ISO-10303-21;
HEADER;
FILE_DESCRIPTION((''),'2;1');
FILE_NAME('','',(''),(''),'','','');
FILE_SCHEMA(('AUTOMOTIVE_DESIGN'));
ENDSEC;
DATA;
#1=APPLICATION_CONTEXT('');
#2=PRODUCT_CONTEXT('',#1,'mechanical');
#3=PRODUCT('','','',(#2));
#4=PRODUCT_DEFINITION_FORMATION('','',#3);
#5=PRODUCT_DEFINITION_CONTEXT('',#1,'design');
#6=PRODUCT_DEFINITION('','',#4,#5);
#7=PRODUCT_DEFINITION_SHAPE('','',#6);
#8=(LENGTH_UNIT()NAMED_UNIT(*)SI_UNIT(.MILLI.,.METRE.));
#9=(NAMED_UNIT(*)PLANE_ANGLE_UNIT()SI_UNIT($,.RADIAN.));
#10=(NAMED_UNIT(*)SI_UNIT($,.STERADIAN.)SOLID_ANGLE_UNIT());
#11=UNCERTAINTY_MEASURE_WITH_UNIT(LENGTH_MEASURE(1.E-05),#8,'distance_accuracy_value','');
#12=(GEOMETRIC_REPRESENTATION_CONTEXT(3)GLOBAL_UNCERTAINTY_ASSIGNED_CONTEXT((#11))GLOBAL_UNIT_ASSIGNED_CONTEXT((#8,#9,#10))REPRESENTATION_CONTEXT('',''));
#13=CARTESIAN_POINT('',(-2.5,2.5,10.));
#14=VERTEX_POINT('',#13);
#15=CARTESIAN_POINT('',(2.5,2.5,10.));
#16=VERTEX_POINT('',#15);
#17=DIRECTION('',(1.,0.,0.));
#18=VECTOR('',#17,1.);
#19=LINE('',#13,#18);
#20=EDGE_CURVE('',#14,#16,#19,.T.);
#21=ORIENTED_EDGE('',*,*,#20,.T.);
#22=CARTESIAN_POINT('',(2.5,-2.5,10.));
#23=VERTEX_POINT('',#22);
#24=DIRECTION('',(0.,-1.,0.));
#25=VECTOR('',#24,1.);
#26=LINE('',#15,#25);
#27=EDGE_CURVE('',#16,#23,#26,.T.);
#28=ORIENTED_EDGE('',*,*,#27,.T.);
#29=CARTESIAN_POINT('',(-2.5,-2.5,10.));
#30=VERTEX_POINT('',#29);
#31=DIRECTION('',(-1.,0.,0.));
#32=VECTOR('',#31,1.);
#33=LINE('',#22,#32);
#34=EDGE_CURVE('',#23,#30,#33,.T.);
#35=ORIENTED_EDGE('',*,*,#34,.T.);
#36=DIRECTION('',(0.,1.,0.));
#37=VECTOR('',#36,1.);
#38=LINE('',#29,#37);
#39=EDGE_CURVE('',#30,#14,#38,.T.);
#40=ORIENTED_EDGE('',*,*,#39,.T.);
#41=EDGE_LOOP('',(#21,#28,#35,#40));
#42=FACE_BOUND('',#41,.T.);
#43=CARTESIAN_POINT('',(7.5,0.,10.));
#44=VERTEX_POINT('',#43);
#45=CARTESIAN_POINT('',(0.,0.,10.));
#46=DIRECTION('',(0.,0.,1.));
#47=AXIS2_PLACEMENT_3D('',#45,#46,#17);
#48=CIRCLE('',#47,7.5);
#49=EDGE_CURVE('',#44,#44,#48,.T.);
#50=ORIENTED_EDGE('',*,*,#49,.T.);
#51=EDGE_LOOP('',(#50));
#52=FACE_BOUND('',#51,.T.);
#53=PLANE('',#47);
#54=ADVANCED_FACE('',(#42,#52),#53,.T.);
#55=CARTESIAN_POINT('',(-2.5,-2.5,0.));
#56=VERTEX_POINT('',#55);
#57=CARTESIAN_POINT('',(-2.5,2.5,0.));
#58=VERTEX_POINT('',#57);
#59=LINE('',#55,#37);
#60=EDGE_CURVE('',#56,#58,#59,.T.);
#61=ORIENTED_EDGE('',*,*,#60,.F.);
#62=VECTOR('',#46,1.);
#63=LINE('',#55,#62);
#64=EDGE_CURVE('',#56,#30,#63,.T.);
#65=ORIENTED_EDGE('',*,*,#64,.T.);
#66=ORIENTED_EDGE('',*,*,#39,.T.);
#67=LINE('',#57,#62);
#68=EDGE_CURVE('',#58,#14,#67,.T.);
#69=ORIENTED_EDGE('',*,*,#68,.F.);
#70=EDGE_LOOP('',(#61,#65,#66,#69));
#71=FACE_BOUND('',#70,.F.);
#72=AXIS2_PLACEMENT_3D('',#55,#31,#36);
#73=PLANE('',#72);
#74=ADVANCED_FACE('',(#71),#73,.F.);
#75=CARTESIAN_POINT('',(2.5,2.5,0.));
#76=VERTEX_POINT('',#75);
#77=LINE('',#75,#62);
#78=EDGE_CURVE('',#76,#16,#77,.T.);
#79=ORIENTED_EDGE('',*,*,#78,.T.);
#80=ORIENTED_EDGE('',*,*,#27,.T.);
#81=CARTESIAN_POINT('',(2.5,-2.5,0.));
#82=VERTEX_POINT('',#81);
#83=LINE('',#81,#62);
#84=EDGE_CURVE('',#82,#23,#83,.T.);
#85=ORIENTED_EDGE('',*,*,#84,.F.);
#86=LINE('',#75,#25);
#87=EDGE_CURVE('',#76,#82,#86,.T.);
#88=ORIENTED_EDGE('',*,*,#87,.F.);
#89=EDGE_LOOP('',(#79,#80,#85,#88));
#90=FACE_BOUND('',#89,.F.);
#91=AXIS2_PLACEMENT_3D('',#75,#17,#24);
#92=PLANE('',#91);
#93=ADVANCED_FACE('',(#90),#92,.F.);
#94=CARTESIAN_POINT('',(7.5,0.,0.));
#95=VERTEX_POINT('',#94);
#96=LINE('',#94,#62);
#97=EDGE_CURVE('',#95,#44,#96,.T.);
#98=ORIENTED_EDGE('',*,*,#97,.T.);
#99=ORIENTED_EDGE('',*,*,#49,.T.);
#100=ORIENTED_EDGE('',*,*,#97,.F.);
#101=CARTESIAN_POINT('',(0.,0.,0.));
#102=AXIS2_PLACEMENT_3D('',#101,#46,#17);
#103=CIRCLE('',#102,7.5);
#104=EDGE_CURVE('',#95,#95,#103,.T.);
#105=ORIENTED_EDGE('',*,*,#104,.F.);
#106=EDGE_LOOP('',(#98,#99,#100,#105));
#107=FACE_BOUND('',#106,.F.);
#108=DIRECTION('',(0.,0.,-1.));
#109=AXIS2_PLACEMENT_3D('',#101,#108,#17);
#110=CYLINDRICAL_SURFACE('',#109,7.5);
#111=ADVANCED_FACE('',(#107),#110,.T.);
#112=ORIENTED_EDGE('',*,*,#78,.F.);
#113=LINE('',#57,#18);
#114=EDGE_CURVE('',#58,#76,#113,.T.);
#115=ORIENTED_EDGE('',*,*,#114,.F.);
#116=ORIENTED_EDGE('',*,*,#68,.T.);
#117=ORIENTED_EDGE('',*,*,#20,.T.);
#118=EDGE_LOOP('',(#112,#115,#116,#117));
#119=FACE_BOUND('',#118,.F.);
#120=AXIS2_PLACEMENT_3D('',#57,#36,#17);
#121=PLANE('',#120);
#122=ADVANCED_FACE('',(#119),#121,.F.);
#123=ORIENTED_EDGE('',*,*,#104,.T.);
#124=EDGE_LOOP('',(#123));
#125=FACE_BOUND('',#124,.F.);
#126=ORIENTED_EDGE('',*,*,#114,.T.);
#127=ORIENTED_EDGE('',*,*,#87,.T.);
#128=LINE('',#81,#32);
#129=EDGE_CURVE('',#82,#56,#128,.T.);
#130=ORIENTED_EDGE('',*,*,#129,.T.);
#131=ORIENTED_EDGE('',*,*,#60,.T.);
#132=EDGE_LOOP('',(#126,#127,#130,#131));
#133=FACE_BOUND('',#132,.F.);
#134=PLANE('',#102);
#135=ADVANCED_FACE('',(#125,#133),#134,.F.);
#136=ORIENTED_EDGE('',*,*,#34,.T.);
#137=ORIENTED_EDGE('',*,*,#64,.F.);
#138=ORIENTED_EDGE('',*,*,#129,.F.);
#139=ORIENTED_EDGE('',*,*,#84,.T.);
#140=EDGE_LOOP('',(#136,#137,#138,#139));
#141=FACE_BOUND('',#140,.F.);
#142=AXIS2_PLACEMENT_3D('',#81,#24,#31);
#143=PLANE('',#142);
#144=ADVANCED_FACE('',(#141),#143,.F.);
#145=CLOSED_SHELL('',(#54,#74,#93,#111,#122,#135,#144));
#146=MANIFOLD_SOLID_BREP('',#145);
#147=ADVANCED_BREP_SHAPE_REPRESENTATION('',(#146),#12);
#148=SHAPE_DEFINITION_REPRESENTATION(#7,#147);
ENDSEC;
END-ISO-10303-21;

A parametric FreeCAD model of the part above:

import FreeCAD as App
import Part
import Sketcher
from FreeCAD import Vector


def add_polygon(sketch, points):
    """Adds a closed chain of lines whose ends are joined by coincident constraints."""
    first, n = sketch.GeometryCount, len(points)
    for a, b in zip(points, points[1:] + points[:1]):
        sketch.addGeometry(Part.LineSegment(App.Vector(*a, 0), App.Vector(*b, 0)), False)
    for i in range(n):
        sketch.addConstraint(Sketcher.Constraint("Coincident", first + i, 2, first + (i + 1) % n, 1))

doc = App.newDocument("Part")
body = doc.addObject("PartDesign::Body", "Body")

sketch1 = doc.addObject("Sketcher::SketchObject", "Sketch")
body.addObject(sketch1)
sketch1.AttachmentSupport = (doc.XY_Plane, [""])
sketch1.MapMode = "FlatFace"
sketch1.addGeometry(Part.Circle(Vector(0, 0, 0), Vector(0, 0, 1), 8), False)
add_polygon(sketch1, [(2, 2), (2, -2), (-2, -2), (-2, 2)])
sketch1.addConstraint([
    Sketcher.Constraint("Vertical", 1),
    Sketcher.Constraint("Horizontal", 2),
    Sketcher.Constraint("Vertical", 3),
    Sketcher.Constraint("Horizontal", 4),
    Sketcher.Constraint("Coincident", 0, 3, -1, 1),
    Sketcher.Constraint("Symmetric", 1, 2, 3, 2, -1, 1),
    Sketcher.Constraint("Equal", 4, 1),
    Sketcher.Constraint("Diameter", 0, 15.0),
    Sketcher.Constraint("DistanceX", 2, 2, 2, 1, 5.0),
])
pad1 = doc.addObject("PartDesign::Pad", "Pad")
body.addObject(pad1)
pad1.Profile = sketch1
pad1.Length = 10

doc.recompute()
